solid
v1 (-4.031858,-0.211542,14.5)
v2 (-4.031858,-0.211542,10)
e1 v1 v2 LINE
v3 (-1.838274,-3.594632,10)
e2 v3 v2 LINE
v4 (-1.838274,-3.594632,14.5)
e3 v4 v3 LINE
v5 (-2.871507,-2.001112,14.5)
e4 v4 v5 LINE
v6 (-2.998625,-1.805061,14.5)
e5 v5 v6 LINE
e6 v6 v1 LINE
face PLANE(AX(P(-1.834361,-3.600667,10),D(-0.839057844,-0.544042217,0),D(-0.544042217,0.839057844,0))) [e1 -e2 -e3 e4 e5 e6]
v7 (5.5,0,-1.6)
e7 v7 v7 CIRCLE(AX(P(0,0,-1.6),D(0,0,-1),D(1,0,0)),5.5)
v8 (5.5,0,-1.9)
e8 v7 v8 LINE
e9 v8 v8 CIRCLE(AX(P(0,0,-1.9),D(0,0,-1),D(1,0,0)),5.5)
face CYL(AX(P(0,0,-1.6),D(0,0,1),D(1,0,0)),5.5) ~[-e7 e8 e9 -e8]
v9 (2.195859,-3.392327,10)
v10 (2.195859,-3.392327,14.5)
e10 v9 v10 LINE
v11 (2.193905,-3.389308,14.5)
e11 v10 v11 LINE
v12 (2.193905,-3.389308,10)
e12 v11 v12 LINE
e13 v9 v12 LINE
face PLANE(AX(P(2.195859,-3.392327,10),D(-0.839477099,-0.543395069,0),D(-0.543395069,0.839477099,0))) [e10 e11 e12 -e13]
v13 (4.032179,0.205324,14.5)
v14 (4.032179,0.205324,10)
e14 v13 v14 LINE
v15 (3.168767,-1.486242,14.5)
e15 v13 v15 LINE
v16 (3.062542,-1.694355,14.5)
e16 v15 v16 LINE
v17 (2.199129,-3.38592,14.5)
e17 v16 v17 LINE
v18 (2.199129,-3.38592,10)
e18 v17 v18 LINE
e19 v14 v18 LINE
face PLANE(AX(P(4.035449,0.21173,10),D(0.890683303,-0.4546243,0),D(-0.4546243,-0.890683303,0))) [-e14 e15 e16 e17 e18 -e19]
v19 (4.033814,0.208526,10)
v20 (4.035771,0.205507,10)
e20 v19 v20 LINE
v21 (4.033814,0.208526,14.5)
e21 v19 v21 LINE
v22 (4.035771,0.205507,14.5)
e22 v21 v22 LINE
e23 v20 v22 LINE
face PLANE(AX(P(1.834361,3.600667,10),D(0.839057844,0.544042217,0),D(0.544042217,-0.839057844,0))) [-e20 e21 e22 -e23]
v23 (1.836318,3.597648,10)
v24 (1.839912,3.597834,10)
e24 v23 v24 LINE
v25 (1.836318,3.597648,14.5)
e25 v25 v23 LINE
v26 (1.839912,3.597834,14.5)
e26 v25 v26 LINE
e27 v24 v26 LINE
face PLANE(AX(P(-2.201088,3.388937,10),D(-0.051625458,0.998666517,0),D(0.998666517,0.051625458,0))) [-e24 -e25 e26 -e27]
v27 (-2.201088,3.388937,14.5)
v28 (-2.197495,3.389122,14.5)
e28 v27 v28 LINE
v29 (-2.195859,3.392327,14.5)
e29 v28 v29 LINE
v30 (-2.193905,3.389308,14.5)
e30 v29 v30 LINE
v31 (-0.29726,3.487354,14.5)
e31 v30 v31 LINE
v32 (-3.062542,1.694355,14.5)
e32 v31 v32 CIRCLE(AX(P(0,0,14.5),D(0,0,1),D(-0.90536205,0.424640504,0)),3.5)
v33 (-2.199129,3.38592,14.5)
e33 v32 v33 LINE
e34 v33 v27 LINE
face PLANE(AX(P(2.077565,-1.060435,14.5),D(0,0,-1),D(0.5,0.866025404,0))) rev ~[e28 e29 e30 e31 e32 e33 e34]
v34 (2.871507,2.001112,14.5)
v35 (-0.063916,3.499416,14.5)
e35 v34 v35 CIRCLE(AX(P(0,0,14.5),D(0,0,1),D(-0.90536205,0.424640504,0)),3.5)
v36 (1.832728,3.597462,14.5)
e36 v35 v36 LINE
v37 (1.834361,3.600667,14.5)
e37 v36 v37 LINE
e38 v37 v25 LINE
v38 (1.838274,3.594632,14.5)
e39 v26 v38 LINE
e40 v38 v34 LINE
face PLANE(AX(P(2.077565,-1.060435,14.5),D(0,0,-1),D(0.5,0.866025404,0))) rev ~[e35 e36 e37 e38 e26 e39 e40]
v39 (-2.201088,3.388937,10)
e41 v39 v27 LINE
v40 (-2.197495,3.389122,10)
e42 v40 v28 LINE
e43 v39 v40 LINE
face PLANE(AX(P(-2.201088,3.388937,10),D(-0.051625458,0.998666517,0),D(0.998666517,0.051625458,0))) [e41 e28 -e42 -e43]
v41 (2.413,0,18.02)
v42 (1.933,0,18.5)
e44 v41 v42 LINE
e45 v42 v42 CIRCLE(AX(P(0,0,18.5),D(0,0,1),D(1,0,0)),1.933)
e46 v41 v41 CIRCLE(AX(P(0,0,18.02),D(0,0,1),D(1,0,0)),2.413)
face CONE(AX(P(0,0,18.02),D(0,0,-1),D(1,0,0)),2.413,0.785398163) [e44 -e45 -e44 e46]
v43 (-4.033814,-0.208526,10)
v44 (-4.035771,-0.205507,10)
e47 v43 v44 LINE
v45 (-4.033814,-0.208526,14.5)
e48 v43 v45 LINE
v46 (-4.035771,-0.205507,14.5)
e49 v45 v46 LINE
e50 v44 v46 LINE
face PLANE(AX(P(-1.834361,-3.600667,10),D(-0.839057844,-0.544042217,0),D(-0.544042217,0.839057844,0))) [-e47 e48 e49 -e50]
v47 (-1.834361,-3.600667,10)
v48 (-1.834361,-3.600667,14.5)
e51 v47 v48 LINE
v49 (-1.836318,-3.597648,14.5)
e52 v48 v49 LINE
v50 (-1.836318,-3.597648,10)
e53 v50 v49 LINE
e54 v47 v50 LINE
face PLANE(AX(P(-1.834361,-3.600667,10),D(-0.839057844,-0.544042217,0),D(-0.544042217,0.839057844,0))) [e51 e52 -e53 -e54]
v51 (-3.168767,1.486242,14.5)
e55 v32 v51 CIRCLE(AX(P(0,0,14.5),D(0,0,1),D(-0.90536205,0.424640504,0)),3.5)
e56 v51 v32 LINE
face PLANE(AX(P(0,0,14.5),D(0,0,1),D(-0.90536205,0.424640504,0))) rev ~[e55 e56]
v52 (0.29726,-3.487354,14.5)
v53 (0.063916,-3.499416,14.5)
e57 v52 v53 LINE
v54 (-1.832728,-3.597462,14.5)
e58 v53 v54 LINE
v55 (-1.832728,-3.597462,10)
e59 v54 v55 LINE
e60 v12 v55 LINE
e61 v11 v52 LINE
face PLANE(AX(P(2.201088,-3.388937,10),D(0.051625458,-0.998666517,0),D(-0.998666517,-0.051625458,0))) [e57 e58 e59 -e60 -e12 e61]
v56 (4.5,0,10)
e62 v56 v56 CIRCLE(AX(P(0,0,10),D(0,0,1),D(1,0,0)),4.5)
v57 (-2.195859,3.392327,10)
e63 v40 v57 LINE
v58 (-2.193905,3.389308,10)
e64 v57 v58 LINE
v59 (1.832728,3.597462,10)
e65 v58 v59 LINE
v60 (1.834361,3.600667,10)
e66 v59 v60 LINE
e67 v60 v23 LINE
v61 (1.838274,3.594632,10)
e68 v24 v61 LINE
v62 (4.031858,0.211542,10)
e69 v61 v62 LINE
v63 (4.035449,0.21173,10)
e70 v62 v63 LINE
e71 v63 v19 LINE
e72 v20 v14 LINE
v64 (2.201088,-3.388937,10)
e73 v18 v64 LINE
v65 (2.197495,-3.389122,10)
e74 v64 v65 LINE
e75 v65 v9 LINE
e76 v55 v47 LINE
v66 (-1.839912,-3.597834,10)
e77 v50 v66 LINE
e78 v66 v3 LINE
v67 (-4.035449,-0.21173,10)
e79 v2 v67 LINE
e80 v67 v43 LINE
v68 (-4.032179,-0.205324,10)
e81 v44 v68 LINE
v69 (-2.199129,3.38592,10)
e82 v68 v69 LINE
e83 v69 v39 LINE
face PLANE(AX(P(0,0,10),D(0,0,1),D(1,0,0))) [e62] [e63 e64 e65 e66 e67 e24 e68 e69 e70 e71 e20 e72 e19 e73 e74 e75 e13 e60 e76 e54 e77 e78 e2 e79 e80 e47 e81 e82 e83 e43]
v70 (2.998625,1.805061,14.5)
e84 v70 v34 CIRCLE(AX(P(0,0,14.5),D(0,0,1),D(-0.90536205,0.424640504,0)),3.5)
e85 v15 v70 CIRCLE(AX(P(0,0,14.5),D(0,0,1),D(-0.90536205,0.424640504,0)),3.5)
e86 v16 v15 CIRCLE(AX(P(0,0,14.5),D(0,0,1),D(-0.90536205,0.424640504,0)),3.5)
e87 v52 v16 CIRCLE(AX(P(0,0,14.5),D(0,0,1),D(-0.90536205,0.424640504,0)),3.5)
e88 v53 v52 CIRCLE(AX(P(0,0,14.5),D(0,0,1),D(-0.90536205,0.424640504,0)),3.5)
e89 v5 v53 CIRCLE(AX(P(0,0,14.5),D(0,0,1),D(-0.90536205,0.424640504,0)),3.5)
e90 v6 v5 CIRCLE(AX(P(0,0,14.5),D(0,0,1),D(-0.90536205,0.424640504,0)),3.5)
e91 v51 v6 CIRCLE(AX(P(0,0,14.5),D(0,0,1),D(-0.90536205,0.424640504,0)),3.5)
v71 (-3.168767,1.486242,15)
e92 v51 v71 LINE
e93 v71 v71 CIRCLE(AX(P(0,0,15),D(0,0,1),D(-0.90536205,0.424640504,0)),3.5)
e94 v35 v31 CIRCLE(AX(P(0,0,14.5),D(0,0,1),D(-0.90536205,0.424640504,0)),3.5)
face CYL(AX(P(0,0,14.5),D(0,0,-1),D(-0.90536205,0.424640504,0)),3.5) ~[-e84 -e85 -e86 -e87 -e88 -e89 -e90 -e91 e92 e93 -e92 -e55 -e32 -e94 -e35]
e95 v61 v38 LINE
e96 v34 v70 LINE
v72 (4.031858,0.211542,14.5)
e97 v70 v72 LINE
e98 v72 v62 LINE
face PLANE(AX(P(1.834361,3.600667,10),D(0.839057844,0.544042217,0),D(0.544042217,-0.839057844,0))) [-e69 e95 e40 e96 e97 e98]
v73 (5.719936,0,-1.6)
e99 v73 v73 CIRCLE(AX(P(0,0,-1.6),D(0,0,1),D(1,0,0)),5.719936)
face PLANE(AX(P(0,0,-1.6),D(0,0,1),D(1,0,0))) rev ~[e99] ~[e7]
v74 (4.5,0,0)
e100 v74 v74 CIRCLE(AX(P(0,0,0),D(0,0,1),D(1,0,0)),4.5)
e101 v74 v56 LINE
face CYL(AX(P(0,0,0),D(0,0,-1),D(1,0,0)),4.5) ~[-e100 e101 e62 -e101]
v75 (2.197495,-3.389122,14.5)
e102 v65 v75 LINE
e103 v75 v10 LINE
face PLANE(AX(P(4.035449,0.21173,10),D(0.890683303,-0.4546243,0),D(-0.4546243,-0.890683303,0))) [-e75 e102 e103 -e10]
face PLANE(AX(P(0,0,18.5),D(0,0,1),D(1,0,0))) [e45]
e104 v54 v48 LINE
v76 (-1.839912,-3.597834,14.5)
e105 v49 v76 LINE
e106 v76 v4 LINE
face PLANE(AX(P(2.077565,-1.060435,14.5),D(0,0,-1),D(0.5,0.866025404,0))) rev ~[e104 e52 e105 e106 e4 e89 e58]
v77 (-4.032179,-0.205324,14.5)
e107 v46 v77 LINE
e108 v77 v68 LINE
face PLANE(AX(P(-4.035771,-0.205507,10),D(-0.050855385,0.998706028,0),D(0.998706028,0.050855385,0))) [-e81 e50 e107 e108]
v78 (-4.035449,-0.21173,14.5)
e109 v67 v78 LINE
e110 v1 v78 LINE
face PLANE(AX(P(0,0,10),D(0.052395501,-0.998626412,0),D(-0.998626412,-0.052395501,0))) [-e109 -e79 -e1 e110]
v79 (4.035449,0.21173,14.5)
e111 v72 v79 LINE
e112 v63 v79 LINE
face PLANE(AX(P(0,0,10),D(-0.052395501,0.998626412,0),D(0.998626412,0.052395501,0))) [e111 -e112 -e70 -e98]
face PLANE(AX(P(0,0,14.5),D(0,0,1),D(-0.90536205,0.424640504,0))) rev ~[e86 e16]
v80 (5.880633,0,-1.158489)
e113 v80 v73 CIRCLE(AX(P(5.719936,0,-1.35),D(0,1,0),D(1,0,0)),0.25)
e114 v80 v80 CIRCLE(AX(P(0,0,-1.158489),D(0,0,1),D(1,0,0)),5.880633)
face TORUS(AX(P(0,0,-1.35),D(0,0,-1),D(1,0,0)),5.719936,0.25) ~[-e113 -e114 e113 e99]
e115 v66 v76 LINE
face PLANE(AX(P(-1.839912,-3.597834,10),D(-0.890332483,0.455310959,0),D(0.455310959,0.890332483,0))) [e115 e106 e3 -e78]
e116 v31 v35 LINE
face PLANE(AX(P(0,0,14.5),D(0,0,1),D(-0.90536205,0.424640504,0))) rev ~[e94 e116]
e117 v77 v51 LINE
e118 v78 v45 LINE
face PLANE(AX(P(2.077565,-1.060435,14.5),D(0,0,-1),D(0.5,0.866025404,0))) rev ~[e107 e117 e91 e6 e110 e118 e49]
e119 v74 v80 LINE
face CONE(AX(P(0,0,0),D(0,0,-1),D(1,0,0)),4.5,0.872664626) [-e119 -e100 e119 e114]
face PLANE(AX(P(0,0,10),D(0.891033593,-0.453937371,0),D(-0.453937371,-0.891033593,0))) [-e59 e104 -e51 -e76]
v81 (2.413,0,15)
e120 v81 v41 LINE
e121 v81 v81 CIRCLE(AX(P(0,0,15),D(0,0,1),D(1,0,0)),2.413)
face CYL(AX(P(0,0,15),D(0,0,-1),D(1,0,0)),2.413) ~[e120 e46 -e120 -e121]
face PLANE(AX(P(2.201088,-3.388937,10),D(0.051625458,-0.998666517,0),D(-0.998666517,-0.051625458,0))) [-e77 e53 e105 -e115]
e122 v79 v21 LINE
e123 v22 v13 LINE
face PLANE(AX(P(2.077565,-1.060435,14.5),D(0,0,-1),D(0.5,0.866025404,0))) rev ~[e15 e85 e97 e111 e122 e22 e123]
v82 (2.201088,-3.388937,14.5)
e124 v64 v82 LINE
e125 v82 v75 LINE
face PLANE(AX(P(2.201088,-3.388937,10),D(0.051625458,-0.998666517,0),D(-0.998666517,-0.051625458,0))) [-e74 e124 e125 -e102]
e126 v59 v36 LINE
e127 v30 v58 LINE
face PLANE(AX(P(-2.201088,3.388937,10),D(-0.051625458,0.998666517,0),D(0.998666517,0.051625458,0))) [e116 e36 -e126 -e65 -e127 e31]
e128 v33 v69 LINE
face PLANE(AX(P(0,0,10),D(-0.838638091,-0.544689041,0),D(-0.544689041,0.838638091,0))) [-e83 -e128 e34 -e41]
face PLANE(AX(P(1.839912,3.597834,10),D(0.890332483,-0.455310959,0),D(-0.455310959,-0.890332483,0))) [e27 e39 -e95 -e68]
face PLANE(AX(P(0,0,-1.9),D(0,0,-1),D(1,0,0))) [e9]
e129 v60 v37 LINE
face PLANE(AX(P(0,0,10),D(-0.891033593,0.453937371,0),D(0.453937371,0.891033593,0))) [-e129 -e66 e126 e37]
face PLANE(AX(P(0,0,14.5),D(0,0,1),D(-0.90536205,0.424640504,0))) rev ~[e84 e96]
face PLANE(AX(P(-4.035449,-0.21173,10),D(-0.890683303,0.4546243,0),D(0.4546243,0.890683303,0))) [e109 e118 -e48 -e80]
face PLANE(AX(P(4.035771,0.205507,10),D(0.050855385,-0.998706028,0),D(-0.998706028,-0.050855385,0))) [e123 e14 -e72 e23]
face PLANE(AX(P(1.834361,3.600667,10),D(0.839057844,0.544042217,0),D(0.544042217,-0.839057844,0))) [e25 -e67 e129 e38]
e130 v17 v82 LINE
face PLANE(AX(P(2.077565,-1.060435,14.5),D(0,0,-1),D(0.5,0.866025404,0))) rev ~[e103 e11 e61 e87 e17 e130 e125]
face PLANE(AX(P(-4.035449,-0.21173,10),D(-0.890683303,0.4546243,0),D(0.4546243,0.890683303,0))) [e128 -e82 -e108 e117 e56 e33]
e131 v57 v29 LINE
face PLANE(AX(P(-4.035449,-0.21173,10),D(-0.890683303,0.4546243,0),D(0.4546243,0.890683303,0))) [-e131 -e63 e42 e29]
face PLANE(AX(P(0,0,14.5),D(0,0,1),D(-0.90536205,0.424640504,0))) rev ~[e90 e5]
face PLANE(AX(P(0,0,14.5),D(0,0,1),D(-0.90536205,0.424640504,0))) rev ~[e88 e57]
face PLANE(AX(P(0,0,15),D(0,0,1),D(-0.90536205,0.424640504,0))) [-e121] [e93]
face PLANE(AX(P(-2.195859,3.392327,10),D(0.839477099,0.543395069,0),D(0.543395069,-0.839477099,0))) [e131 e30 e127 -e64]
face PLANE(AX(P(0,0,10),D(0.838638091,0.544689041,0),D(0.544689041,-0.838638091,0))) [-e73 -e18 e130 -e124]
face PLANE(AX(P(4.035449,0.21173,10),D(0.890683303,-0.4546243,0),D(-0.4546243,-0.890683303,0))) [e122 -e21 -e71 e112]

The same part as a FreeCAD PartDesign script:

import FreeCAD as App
import Part
import Sketcher


def edges_at(feature, points):
    """Names of the edges that pass closest to the given points."""
    edges = feature.Shape.Edges
    near = lambda p: min(range(len(edges)), key=lambda i: edges[i].distToShape(Part.Vertex(*p))[0])
    return sorted({f"Edge{near(p) + 1}" for p in points})


def faces_at(feature, points):
    """Names of the faces that lie closest to the given points."""
    faces = feature.Shape.Faces
    near = lambda p: min(range(len(faces)), key=lambda i: faces[i].distToShape(Part.Vertex(*p))[0])
    return sorted({f"Face{near(p) + 1}" for p in points})

doc = App.newDocument("Part")
body = doc.addObject("PartDesign::Body", "Body")

# Sketch on XY plane
sketch1 = body.newObject("Sketcher::SketchObject", "Sketch")
sketch1.AttachmentSupport = (doc.getObject("XY_Plane"), [""])
sketch1.MapMode = "FlatFace"
sketch1.addGeometry(Part.Circle(App.Vector(0, 0, 0), App.Vector(0, 0, 1), 4.5), False)
sketch1.addConstraint([
    Sketcher.Constraint("Coincident", 0, 3, -1, 1),
    Sketcher.Constraint("Diameter", 0, 9.0),
])
pad1 = body.newObject("PartDesign::Pad", "Pad")
pad1.Profile = sketch1
pad1.Length = 10
body2 = doc.addObject("PartDesign::Body", "Body001")

# Sketch on XY plane
sketch2 = body2.newObject("Sketcher::SketchObject", "Sketch001")
sketch2.AttachmentSupport = (doc.getObject("XY_Plane001"), [""])
sketch2.MapMode = "FlatFace"
sketch2.addGeometry(Part.Circle(App.Vector(0, 0, 0), App.Vector(0, 0, 1), 4.5), False)
sketch2.addConstraint([
    Sketcher.Constraint("Coincident", 0, 3, -1, 1),
    Sketcher.Constraint("Diameter", 0, 9.0),
])
pad2 = body2.newObject("PartDesign::Pad", "Pad001")
pad2.Profile = sketch2
pad2.Length = 1.6
pad2.Reversed = True
doc.recompute()

draft = body2.newObject("PartDesign::Draft", "Draft")
draft.Base = (pad2, faces_at(pad2, [(-4.5, 0, -0.8)]))
draft.NeutralPlane = (doc.getObject("XY_Plane001"), [""])
draft.Angle = 50
draft.Reversed = False
doc.recompute()

boolean = body.newObject("PartDesign::Boolean", "Boolean")
boolean.Type = "Fuse"
boolean.addObjects([body2])
doc.recompute()

fillet = body.newObject("PartDesign::Fillet", "Fillet")
fillet.Base = (boolean, edges_at(boolean, [(-6.407, 0, -1.6)]))
fillet.Radius = 0.25

# Sketch on XY plane
sketch3 = body.newObject("Sketcher::SketchObject", "Sketch002")
sketch3.AttachmentSupport = (doc.getObject("XY_Plane"), [""])
sketch3.MapMode = "FlatFace"
sketch3.AttachmentOffset = App.Placement(App.Vector(0, 0, -1.6), App.Rotation())
sketch3.addGeometry(Part.Circle(App.Vector(0, 0, 0), App.Vector(0, 0, 1), 6), False)
sketch3.addConstraint([
    Sketcher.Constraint("Coincident", 0, 3, -1, 1),
    Sketcher.Constraint("Diameter", 0, 11.0),
])
pad3 = body.newObject("PartDesign::Pad", "Pad002")
pad3.Profile = sketch3
pad3.Length = 0.3
pad3.Reversed = True

# Sketch on XY plane
sketch4 = body.newObject("Sketcher::SketchObject", "Sketch003")
sketch4.AttachmentSupport = (doc.getObject("XY_Plane"), [""])
sketch4.MapMode = "FlatFace"
sketch4.AttachmentOffset = App.Placement(App.Vector(0, 0, 10), App.Rotation())
sketch4.addGeometry([
    Part.LineSegment(App.Vector(-2.2, 3.4, 0), App.Vector(0, 0, 0)),
    Part.LineSegment(App.Vector(0, 0, 0), App.Vector(1.8, 3.6, 0)),
    Part.LineSegment(App.Vector(1.8, 3.6, 0), App.Vector(-2.2, 3.4, 0)),
], False)
sketch4.addConstraint([
    Sketcher.Constraint("Coincident", 0, 2, 1, 1),
    Sketcher.Constraint("Coincident", 1, 2, 2, 1),
    Sketcher.Constraint("Coincident", 2, 2, 0, 1),
    Sketcher.Constraint("Coincident", 0, 2, -1, 1),
    Sketcher.Constraint("Equal", 0, 1),
    Sketcher.Constraint("Distance", 0, 4.041),
    Sketcher.Constraint("DistanceX", 2, 2, 1, 2, 4.041),
    Sketcher.Constraint("DistanceX", -1, 1, 1, 2, 1.839912),
])
pad4 = body.newObject("PartDesign::Pad", "Pad003")
pad4.Profile = sketch4
pad4.Length = 4.5
doc.recompute()

polarpattern = body.newObject("PartDesign::PolarPattern", "PolarPattern")
polarpattern.Originals = [pad4]
polarpattern.Axis = (doc.getObject("Z_Axis"), [""])
polarpattern.Angle = 360
polarpattern.Occurrences = 6
body.Tip = polarpattern

# Sketch on XY plane
sketch5 = body.newObject("Sketcher::SketchObject", "Sketch004")
sketch5.AttachmentSupport = (doc.getObject("XY_Plane"), [""])
sketch5.MapMode = "FlatFace"
sketch5.AttachmentOffset = App.Placement(App.Vector(0, 0, 14.5), App.Rotation())
sketch5.addGeometry(Part.Circle(App.Vector(0, 0, 0), App.Vector(0, 0, 1), 3.5), False)
sketch5.addConstraint([
    Sketcher.Constraint("Coincident", 0, 3, -1, 1),
    Sketcher.Constraint("Diameter", 0, 7.0),
])
pad5 = body.newObject("PartDesign::Pad", "Pad004")
pad5.Profile = sketch5
pad5.Length = 0.5

# Sketch on XY plane
sketch6 = body.newObject("Sketcher::SketchObject", "Sketch005")
sketch6.AttachmentSupport = (doc.getObject("XY_Plane"), [""])
sketch6.MapMode = "FlatFace"
sketch6.AttachmentOffset = App.Placement(App.Vector(0, 0, 15), App.Rotation())
sketch6.addGeometry(Part.Circle(App.Vector(0, 0, 0), App.Vector(0, 0, 1), 2.4), False)
sketch6.addConstraint([
    Sketcher.Constraint("Coincident", 0, 3, -1, 1),
    Sketcher.Constraint("Diameter", 0, 4.826),
])
pad6 = body.newObject("PartDesign::Pad", "Pad005")
pad6.Profile = sketch6
pad6.Length = 3.5
doc.recompute()

chamfer = body.newObject("PartDesign::Chamfer", "Chamfer")
chamfer.Base = (pad6, edges_at(pad6, [(-2.413, 0, 18.5)]))
chamfer.Size = 0.48

doc.recompute()
